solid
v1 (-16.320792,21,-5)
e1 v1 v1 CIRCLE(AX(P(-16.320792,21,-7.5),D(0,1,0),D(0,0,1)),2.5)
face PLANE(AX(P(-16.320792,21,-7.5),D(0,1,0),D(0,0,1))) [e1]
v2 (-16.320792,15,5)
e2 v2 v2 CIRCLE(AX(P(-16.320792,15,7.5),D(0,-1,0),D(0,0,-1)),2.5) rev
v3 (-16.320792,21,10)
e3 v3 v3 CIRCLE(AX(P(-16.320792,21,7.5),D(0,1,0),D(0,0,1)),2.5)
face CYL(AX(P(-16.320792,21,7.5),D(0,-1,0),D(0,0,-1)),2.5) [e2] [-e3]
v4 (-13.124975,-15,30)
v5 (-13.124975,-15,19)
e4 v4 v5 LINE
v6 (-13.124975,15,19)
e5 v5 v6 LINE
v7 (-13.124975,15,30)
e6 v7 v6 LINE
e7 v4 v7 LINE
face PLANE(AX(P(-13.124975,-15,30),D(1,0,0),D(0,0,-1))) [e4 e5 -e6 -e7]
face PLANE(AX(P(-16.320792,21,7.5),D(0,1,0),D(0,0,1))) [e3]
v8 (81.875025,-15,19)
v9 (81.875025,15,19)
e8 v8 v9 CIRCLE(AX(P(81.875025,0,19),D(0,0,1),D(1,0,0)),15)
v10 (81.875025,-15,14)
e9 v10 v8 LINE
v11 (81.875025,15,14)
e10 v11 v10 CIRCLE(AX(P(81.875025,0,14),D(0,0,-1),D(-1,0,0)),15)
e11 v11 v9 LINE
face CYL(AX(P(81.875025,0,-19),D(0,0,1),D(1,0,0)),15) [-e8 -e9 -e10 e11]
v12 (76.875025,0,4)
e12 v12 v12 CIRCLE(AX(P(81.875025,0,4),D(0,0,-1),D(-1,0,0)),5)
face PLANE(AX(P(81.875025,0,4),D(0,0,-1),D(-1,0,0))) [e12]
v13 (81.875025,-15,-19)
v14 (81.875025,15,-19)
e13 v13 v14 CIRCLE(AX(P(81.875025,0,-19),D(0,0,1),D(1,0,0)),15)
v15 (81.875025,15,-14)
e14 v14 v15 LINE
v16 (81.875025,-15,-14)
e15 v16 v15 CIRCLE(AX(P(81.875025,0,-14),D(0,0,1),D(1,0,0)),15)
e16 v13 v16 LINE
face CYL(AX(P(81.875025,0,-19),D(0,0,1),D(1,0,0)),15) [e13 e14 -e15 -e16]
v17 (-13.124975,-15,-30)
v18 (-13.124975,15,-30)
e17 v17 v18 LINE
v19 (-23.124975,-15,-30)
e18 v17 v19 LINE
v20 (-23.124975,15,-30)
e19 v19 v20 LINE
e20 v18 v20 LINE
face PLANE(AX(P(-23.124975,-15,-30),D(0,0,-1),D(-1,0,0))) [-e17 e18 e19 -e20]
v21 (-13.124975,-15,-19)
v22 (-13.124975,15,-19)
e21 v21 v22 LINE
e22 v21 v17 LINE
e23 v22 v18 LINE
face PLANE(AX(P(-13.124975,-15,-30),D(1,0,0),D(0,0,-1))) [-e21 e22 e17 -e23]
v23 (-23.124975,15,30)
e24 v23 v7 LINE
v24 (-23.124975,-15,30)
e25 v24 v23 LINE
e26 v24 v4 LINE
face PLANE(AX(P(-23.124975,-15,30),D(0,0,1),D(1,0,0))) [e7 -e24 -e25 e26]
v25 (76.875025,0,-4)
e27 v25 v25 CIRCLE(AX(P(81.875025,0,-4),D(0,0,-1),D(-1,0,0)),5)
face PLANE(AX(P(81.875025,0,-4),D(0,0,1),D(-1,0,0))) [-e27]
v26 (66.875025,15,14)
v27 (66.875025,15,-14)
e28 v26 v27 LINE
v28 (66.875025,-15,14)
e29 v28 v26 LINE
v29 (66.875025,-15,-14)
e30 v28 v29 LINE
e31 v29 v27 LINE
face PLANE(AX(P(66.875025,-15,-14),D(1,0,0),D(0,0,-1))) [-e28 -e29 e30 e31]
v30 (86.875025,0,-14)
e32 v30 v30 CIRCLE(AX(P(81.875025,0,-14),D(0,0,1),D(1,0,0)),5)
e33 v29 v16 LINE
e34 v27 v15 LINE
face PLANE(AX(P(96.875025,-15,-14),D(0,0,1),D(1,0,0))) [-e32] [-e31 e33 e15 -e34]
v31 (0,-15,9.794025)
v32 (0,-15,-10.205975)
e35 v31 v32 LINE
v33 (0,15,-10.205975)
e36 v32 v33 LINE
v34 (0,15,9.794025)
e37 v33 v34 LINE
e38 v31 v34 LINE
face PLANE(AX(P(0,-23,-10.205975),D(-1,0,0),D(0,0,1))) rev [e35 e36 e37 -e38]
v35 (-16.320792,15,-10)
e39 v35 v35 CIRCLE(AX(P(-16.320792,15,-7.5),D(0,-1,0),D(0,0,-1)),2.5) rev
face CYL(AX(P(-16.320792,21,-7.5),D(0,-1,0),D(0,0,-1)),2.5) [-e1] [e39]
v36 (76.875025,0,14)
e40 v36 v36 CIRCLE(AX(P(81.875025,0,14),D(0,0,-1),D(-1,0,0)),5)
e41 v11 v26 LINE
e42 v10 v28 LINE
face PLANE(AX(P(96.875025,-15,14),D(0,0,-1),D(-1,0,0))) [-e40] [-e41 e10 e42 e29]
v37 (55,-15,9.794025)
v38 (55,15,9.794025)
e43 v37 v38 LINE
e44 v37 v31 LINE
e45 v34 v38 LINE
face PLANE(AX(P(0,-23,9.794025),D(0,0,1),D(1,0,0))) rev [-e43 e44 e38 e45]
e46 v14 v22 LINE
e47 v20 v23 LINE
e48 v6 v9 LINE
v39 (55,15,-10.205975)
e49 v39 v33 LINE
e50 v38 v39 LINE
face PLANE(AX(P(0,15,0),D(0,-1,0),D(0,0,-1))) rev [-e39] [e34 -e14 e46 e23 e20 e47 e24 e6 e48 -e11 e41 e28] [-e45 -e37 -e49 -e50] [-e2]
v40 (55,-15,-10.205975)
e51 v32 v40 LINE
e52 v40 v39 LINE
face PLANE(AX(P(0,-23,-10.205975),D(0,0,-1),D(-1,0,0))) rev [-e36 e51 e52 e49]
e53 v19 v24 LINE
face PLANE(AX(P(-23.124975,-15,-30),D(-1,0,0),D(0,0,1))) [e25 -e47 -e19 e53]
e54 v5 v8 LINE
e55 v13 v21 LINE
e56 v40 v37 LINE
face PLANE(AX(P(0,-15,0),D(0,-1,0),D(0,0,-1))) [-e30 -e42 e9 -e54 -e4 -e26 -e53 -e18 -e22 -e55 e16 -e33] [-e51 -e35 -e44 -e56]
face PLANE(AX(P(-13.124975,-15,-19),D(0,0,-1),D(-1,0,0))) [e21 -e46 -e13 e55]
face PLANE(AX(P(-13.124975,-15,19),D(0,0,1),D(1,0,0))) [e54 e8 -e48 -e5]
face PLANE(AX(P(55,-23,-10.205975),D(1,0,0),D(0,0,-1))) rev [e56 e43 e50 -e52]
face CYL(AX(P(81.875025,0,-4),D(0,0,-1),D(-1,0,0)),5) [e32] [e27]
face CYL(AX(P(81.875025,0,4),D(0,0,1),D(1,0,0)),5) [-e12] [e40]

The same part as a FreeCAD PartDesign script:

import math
import FreeCAD as App
import Part
import Sketcher

V = App.Vector
Q = App.Units.Quantity

doc = App.newDocument("Part")
body = doc.addObject("PartDesign::Body", "Body")

# Sketch on XZ plane
sketch1 = body.newObject("Sketcher::SketchObject", "Sketch")
sketch1.AttachmentSupport = (doc.getObject("XZ_Plane"), [""])
sketch1.MapMode = "FlatFace"
sketch1.addGeometry([
    Part.LineSegment(V(-13.124975, -19, 0), V(-13.124975, -30, 0)),  # 0
    Part.LineSegment(V(-13.124975, -30, 0), V(-23.124975, -30, 0)),  # 1
    Part.LineSegment(V(-23.124975, -30, 0), V(-23.124975, 30, 0)),  # 2
    Part.LineSegment(V(-23.124975, 30, 0), V(-13.124975, 30, 0)),  # 3
    Part.LineSegment(V(-13.124975, 30, 0), V(-13.124975, 19, 0)),  # 4
    Part.LineSegment(V(-13.124975, 19, 0), V(96.875025, 19, 0)),  # 5
    Part.LineSegment(V(96.875025, 19, 0), V(96.875025, 14, 0)),  # 6
    Part.LineSegment(V(96.875025, 14, 0), V(66.875025, 14, 0)),  # 7
    Part.LineSegment(V(66.875025, 14, 0), V(66.875025, -14, 0)),  # 8
    Part.LineSegment(V(66.875025, -14, 0), V(96.875025, -14, 0)),  # 9
    Part.LineSegment(V(96.875025, -14, 0), V(96.875025, -19, 0)),  # 10
    Part.LineSegment(V(96.875025, -19, 0), V(-13.124975, -19, 0)),  # 11
], False)
sketch1.addConstraint([
    Sketcher.Constraint("Coincident", 0, 2, 1, 1),
    Sketcher.Constraint("Coincident", 1, 2, 2, 1),
    Sketcher.Constraint("Coincident", 2, 2, 3, 1),
    Sketcher.Constraint("Coincident", 3, 2, 4, 1),
    Sketcher.Constraint("Coincident", 4, 2, 5, 1),
    Sketcher.Constraint("Coincident", 5, 2, 6, 1),
    Sketcher.Constraint("Coincident", 6, 2, 7, 1),
    Sketcher.Constraint("Coincident", 7, 2, 8, 1),
    Sketcher.Constraint("Coincident", 8, 2, 9, 1),
    Sketcher.Constraint("Coincident", 9, 2, 10, 1),
    Sketcher.Constraint("Coincident", 10, 2, 11, 1),
    Sketcher.Constraint("Coincident", 11, 2, 0, 1),
    Sketcher.Constraint("Vertical", 0),
    Sketcher.Constraint("Horizontal", 1),
    Sketcher.Constraint("Vertical", 2),
    Sketcher.Constraint("Horizontal", 3),
    Sketcher.Constraint("Vertical", 4),
    Sketcher.Constraint("Horizontal", 5),
    Sketcher.Constraint("Vertical", 6),
    Sketcher.Constraint("Horizontal", 7),
    Sketcher.Constraint("Vertical", 8),
    Sketcher.Constraint("Horizontal", 9),
    Sketcher.Constraint("Vertical", 10),
    Sketcher.Constraint("Horizontal", 11),
    Sketcher.Constraint("Symmetric", 0, 2, 3, 2, -1),
    Sketcher.Constraint("Symmetric", 6, 2, 9, 2, -1),
    Sketcher.Constraint("Equal", 0, 4),
    Sketcher.Constraint("DistanceX", 1, 2, 1, 1, Q("10 mm")),
    Sketcher.Constraint("DistanceX", 5, 1, 5, 2, Q("110 mm")),
    Sketcher.Constraint("DistanceX", 7, 2, 7, 1, Q("30 mm")),
    Sketcher.Constraint("DistanceY", 0, 2, 0, 1, Q("11 mm")),
    Sketcher.Constraint("DistanceY", 2, 1, 2, 2, Q("60 mm")),
    Sketcher.Constraint("DistanceY", 6, 2, 6, 1, Q("5 mm")),
    Sketcher.Constraint("DistanceX", 0, 2, -1, 1, Q("13.124975 mm")),
])
pad1 = body.newObject("PartDesign::Pad", "Pad")
pad1.Profile = sketch1
pad1.Type = "TwoLengths"
pad1.Length = 15
pad1.Length2 = 15
pad1.Reversed = True

# Sketch on XY plane
sketch2 = body.newObject("Sketcher::SketchObject", "Sketch001")
sketch2.AttachmentSupport = (doc.getObject("XY_Plane"), [""])
sketch2.MapMode = "FlatFace"
sketch2.AttachmentOffset = App.Placement(V(0, 0, 19), App.Rotation())
sketch2.addGeometry([
    Part.LineSegment(V(96.875025, 15, 0), V(81.875025, 15, 0)),  # 0
    Part.ArcOfCircle(Part.Circle(V(81.875025, 0, 0), V(0, 0, 1), 15), math.radians(0), math.radians(90)),  # 1
    Part.LineSegment(V(96.875025, 0, 0), V(96.875025, 15, 0)),  # 2
    Part.LineSegment(V(96.875025, -15, 0), V(96.875025, 0, 0)),  # 3
    Part.ArcOfCircle(Part.Circle(V(81.875025, 0, 0), V(0, 0, 1), 15), math.radians(-90), math.radians(0)),  # 4
    Part.LineSegment(V(81.875025, -15, 0), V(96.875025, -15, 0)),  # 5
], False)
sketch2.addConstraint([
    Sketcher.Constraint("Tangent", 0, 2, 1, 2),
    Sketcher.Constraint("Tangent", 1, 1, 2, 1),
    Sketcher.Constraint("Coincident", 2, 2, 0, 1),
    Sketcher.Constraint("Tangent", 3, 2, 4, 2),
    Sketcher.Constraint("Tangent", 4, 1, 5, 1),
    Sketcher.Constraint("Coincident", 5, 2, 3, 1),
    Sketcher.Constraint("Horizontal", 0),
    Sketcher.Constraint("Vertical", 2),
    Sketcher.Constraint("Vertical", 3),
    Sketcher.Constraint("Horizontal", 5),
    Sketcher.Constraint("Coincident", 4, 3, 1, 3),
    Sketcher.Constraint("Equal", 1, 4),
    Sketcher.Constraint("PointOnObject", 1, 3, -1),
    Sketcher.Constraint("Radius", 1, Q("15 mm")),
    Sketcher.Constraint("DistanceX", -1, 1, 1, 3, Q("81.875025 mm")),
])
pocket1 = body.newObject("PartDesign::Pocket", "Pocket")
pocket1.Profile = sketch2
pocket1.Length = 38

# Sketch on XZ plane
sketch3 = body.newObject("Sketcher::SketchObject", "Sketch002")
sketch3.AttachmentSupport = (doc.getObject("XZ_Plane"), [""])
sketch3.MapMode = "FlatFace"
sketch3.AttachmentOffset = App.Placement(V(0, 0, -15), App.Rotation())
sketch3.addGeometry([
    Part.LineSegment(V(0, -10.205975, 0), V(0, 9.794025, 0)),
    Part.LineSegment(V(0, 9.794025, 0), V(55, 9.794025, 0)),
    Part.LineSegment(V(55, 9.794025, 0), V(55, -10.205975, 0)),
    Part.LineSegment(V(55, -10.205975, 0), V(0, -10.205975, 0)),
], False)
sketch3.addConstraint([
    Sketcher.Constraint("Coincident", 0, 2, 1, 1),
    Sketcher.Constraint("Coincident", 1, 2, 2, 1),
    Sketcher.Constraint("Coincident", 2, 2, 3, 1),
    Sketcher.Constraint("Coincident", 3, 2, 0, 1),
    Sketcher.Constraint("Vertical", 0),
    Sketcher.Constraint("Horizontal", 1),
    Sketcher.Constraint("Vertical", 2),
    Sketcher.Constraint("Horizontal", 3),
    Sketcher.Constraint("PointOnObject", 0, 2, -2),
    Sketcher.Constraint("DistanceX", 1, 1, 1, 2, Q("55 mm")),
    Sketcher.Constraint("DistanceY", 0, 1, 0, 2, Q("20 mm")),
    Sketcher.Constraint("DistanceY", -1, 1, 0, 2, Q("9.794025 mm")),
])
pocket2 = body.newObject("PartDesign::Pocket", "Pocket001")
pocket2.Profile = sketch3
pocket2.Length = 38
pocket2.Reversed = True

# Sketch on XY plane
sketch4 = body.newObject("Sketcher::SketchObject", "Sketch003")
sketch4.AttachmentSupport = (doc.getObject("XY_Plane"), [""])
sketch4.MapMode = "FlatFace"
sketch4.AttachmentOffset = App.Placement(V(0, 0, 14), App.Rotation())
sketch4.addGeometry(Part.Circle(V(81.875025, 0, 0), V(0, 0, 1), 5), False)
sketch4.addConstraint([
    Sketcher.Constraint("PointOnObject", 0, 3, -1),
    Sketcher.Constraint("Diameter", 0, Q("10 mm")),
    Sketcher.Constraint("DistanceX", -1, 1, 0, 3, Q("81.875025 mm")),
])
pad2 = body.newObject("PartDesign::Pad", "Pad001")
pad2.Profile = sketch4
pad2.Length = 10
pad2.Reversed = True
doc.recompute()

mirrored = body.newObject("PartDesign::Mirrored", "Mirrored")
mirrored.Originals = [pad2]
mirrored.MirrorPlane = (doc.getObject("XY_Plane"), [""])
body.Tip = mirrored

# Sketch on XZ plane
sketch5 = body.newObject("Sketcher::SketchObject", "Sketch004")
sketch5.AttachmentSupport = (doc.getObject("XZ_Plane"), [""])
sketch5.MapMode = "FlatFace"
sketch5.AttachmentOffset = App.Placement(V(0, 0, -15), App.Rotation())
sketch5.addGeometry([
    Part.Circle(V(-16.320792, -7.5, 0), V(0, 0, 1), 2.5),
    Part.Circle(V(-16.320792, 7.5, 0), V(0, 0, 1), 2.5),
], False)
sketch5.addConstraint([
    Sketcher.Constraint("Equal", 0, 1),
    Sketcher.Constraint("Symmetric", 0, 3, 1, 3, -1),
    Sketcher.Constraint("Diameter", 0, Q("5 mm")),
    Sketcher.Constraint("DistanceY", 0, 3, 1, 3, Q("15 mm")),
    Sketcher.Constraint("DistanceX", 0, 3, -1, 1, Q("16.320792 mm")),
])
pad3 = body.newObject("PartDesign::Pad", "Pad002")
pad3.Profile = sketch5
pad3.Length = 6
pad3.Reversed = True

doc.recompute()
